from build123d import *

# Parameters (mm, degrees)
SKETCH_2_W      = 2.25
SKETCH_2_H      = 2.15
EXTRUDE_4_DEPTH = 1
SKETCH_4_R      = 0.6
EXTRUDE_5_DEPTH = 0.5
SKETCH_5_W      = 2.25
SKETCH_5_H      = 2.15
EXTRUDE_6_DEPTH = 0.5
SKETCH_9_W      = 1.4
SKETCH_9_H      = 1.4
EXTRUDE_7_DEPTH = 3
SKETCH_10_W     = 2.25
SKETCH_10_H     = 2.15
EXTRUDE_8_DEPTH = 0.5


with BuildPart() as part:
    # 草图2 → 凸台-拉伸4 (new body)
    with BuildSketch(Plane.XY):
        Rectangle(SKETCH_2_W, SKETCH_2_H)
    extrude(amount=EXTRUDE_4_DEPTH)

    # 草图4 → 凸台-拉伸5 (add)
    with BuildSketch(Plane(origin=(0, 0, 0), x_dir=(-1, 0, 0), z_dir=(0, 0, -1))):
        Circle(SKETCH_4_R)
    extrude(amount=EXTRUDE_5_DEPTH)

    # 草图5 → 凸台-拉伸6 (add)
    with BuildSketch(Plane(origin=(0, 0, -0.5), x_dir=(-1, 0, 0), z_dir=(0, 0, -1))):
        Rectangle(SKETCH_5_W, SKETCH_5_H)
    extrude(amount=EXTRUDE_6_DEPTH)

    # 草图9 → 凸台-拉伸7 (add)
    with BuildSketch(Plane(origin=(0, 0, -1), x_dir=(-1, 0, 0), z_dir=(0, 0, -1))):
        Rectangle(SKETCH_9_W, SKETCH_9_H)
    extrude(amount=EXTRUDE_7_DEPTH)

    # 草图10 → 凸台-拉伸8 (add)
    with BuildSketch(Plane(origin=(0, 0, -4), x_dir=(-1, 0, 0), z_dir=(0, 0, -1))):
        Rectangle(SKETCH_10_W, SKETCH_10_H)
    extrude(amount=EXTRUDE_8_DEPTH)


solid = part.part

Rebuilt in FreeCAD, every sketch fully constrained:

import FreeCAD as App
import Part
import Sketcher

V = App.Vector

doc = App.newDocument("Part")
body = doc.addObject("PartDesign::Body", "Body")

sketch1 = body.newObject("Sketcher::SketchObject", "Sketch")
sketch1.AttachmentSupport = (doc.getObject("XY_Plane"), [""])
sketch1.MapMode = "FlatFace"
sketch1.addGeometry([
    Part.LineSegment(V(-1.1, 1.1, 0), V(-1.1, -1.1, 0)),
    Part.LineSegment(V(-1.1, -1.1, 0), V(1.1, -1.1, 0)),
    Part.LineSegment(V(1.1, -1.1, 0), V(1.1, 1.1, 0)),
    Part.LineSegment(V(1.1, 1.1, 0), V(-1.1, 1.1, 0)),
], False)
sketch1.addConstraint([
    Sketcher.Constraint("Coincident", 0, 2, 1, 1),
    Sketcher.Constraint("Coincident", 1, 2, 2, 1),
    Sketcher.Constraint("Coincident", 2, 2, 3, 1),
    Sketcher.Constraint("Coincident", 3, 2, 0, 1),
    Sketcher.Constraint("Vertical", 0),
    Sketcher.Constraint("Horizontal", 1),
    Sketcher.Constraint("Vertical", 2),
    Sketcher.Constraint("Horizontal", 3),
    Sketcher.Constraint("Symmetric", 0, 2, 2, 2, -1, 1),
    Sketcher.Constraint("DistanceX", 1, 1, 1, 2, 2.25),
    Sketcher.Constraint("DistanceY", 0, 2, 0, 1, 2.15),
])
pad1 = body.newObject("PartDesign::Pad", "Pad")
pad1.Profile = sketch1
pad1.Length = 1

sketch2 = body.newObject("Sketcher::SketchObject", "Sketch001")
sketch2.AttachmentSupport = (doc.getObject("XY_Plane"), [""])
sketch2.MapMode = "FlatFace"
sketch2.addGeometry(Part.Circle(V(0, 0, 0), V(0, 0, 1), 0.6), False)
sketch2.addConstraint([
    Sketcher.Constraint("Coincident", 0, 3, -1, 1),
    Sketcher.Constraint("Diameter", 0, 1.2),
])
pad2 = body.newObject("PartDesign::Pad", "Pad001")
pad2.Profile = sketch2
pad2.Length = 0.5
pad2.Reversed = True

sketch3 = body.newObject("Sketcher::SketchObject", "Sketch002")
sketch3.AttachmentSupport = (doc.getObject("XY_Plane"), [""])
sketch3.MapMode = "FlatFace"
sketch3.AttachmentOffset = App.Placement(V(0, 0, -0.5), App.Rotation())
sketch3.addGeometry([
    Part.LineSegment(V(1.1, 1.1, 0), V(1.1, -1.1, 0)),
    Part.LineSegment(V(1.1, -1.1, 0), V(-1.1, -1.1, 0)),
    Part.LineSegment(V(-1.1, -1.1, 0), V(-1.1, 1.1, 0)),
    Part.LineSegment(V(-1.1, 1.1, 0), V(1.1, 1.1, 0)),
], False)
sketch3.addConstraint([
    Sketcher.Constraint("Coincident", 0, 2, 1, 1),
    Sketcher.Constraint("Coincident", 1, 2, 2, 1),
    Sketcher.Constraint("Coincident", 2, 2, 3, 1),
    Sketcher.Constraint("Coincident", 3, 2, 0, 1),
    Sketcher.Constraint("Vertical", 0),
    Sketcher.Constraint("Horizontal", 1),
    Sketcher.Constraint("Vertical", 2),
    Sketcher.Constraint("Horizontal", 3),
    Sketcher.Constraint("Symmetric", 0, 2, 2, 2, -1, 1),
    Sketcher.Constraint("DistanceX", 1, 2, 1, 1, 2.25),
    Sketcher.Constraint("DistanceY", 0, 2, 0, 1, 2.15),
])
pad3 = body.newObject("PartDesign::Pad", "Pad002")
pad3.Profile = sketch3
pad3.Length = 0.5
pad3.Reversed = True

sketch4 = body.newObject("Sketcher::SketchObject", "Sketch003")
sketch4.AttachmentSupport = (doc.getObject("XY_Plane"), [""])
sketch4.MapMode = "FlatFace"
sketch4.AttachmentOffset = App.Placement(V(0, 0, -1), App.Rotation())
sketch4.addGeometry([
    Part.LineSegment(V(0.7, 0.7, 0), V(0.7, -0.7, 0)),
    Part.LineSegment(V(0.7, -0.7, 0), V(-0.7, -0.7, 0)),
    Part.LineSegment(V(-0.7, -0.7, 0), V(-0.7, 0.7, 0)),
    Part.LineSegment(V(-0.7, 0.7, 0), V(0.7, 0.7, 0)),
], False)
sketch4.addConstraint([
    Sketcher.Constraint("Coincident", 0, 2, 1, 1),
    Sketcher.Constraint("Coincident", 1, 2, 2, 1),
    Sketcher.Constraint("Coincident", 2, 2, 3, 1),
    Sketcher.Constraint("Coincident", 3, 2, 0, 1),
    Sketcher.Constraint("Vertical", 0),
    Sketcher.Constraint("Horizontal", 1),
    Sketcher.Constraint("Vertical", 2),
    Sketcher.Constraint("Horizontal", 3),
    Sketcher.Constraint("Symmetric", 0, 2, 2, 2, -1, 1),
    Sketcher.Constraint("Equal", 3, 0),
    Sketcher.Constraint("DistanceX", 1, 2, 1, 1, 1.4),
])
pad4 = body.newObject("PartDesign::Pad", "Pad003")
pad4.Profile = sketch4
pad4.Length = 3
pad4.Reversed = True

sketch5 = body.newObject("Sketcher::SketchObject", "Sketch004")
sketch5.AttachmentSupport = (doc.getObject("XY_Plane"), [""])
sketch5.MapMode = "FlatFace"
sketch5.AttachmentOffset = App.Placement(V(0, 0, -4), App.Rotation())
sketch5.addGeometry([
    Part.LineSegment(V(1.1, 1.1, 0), V(1.1, -1.1, 0)),
    Part.LineSegment(V(1.1, -1.1, 0), V(-1.1, -1.1, 0)),
    Part.LineSegment(V(-1.1, -1.1, 0), V(-1.1, 1.1, 0)),
    Part.LineSegment(V(-1.1, 1.1, 0), V(1.1, 1.1, 0)),
], False)
sketch5.addConstraint([
    Sketcher.Constraint("Coincident", 0, 2, 1, 1),
    Sketcher.Constraint("Coincident", 1, 2, 2, 1),
    Sketcher.Constraint("Coincident", 2, 2, 3, 1),
    Sketcher.Constraint("Coincident", 3, 2, 0, 1),
    Sketcher.Constraint("Vertical", 0),
    Sketcher.Constraint("Horizontal", 1),
    Sketcher.Constraint("Vertical", 2),
    Sketcher.Constraint("Horizontal", 3),
    Sketcher.Constraint("Symmetric", 0, 2, 2, 2, -1, 1),
    Sketcher.Constraint("DistanceX", 1, 2, 1, 1, 2.25),
    Sketcher.Constraint("DistanceY", 0, 2, 0, 1, 2.15),
])
pad5 = body.newObject("PartDesign::Pad", "Pad004")
pad5.Profile = sketch5
pad5.Length = 0.5
pad5.Reversed = True

doc.recompute()
